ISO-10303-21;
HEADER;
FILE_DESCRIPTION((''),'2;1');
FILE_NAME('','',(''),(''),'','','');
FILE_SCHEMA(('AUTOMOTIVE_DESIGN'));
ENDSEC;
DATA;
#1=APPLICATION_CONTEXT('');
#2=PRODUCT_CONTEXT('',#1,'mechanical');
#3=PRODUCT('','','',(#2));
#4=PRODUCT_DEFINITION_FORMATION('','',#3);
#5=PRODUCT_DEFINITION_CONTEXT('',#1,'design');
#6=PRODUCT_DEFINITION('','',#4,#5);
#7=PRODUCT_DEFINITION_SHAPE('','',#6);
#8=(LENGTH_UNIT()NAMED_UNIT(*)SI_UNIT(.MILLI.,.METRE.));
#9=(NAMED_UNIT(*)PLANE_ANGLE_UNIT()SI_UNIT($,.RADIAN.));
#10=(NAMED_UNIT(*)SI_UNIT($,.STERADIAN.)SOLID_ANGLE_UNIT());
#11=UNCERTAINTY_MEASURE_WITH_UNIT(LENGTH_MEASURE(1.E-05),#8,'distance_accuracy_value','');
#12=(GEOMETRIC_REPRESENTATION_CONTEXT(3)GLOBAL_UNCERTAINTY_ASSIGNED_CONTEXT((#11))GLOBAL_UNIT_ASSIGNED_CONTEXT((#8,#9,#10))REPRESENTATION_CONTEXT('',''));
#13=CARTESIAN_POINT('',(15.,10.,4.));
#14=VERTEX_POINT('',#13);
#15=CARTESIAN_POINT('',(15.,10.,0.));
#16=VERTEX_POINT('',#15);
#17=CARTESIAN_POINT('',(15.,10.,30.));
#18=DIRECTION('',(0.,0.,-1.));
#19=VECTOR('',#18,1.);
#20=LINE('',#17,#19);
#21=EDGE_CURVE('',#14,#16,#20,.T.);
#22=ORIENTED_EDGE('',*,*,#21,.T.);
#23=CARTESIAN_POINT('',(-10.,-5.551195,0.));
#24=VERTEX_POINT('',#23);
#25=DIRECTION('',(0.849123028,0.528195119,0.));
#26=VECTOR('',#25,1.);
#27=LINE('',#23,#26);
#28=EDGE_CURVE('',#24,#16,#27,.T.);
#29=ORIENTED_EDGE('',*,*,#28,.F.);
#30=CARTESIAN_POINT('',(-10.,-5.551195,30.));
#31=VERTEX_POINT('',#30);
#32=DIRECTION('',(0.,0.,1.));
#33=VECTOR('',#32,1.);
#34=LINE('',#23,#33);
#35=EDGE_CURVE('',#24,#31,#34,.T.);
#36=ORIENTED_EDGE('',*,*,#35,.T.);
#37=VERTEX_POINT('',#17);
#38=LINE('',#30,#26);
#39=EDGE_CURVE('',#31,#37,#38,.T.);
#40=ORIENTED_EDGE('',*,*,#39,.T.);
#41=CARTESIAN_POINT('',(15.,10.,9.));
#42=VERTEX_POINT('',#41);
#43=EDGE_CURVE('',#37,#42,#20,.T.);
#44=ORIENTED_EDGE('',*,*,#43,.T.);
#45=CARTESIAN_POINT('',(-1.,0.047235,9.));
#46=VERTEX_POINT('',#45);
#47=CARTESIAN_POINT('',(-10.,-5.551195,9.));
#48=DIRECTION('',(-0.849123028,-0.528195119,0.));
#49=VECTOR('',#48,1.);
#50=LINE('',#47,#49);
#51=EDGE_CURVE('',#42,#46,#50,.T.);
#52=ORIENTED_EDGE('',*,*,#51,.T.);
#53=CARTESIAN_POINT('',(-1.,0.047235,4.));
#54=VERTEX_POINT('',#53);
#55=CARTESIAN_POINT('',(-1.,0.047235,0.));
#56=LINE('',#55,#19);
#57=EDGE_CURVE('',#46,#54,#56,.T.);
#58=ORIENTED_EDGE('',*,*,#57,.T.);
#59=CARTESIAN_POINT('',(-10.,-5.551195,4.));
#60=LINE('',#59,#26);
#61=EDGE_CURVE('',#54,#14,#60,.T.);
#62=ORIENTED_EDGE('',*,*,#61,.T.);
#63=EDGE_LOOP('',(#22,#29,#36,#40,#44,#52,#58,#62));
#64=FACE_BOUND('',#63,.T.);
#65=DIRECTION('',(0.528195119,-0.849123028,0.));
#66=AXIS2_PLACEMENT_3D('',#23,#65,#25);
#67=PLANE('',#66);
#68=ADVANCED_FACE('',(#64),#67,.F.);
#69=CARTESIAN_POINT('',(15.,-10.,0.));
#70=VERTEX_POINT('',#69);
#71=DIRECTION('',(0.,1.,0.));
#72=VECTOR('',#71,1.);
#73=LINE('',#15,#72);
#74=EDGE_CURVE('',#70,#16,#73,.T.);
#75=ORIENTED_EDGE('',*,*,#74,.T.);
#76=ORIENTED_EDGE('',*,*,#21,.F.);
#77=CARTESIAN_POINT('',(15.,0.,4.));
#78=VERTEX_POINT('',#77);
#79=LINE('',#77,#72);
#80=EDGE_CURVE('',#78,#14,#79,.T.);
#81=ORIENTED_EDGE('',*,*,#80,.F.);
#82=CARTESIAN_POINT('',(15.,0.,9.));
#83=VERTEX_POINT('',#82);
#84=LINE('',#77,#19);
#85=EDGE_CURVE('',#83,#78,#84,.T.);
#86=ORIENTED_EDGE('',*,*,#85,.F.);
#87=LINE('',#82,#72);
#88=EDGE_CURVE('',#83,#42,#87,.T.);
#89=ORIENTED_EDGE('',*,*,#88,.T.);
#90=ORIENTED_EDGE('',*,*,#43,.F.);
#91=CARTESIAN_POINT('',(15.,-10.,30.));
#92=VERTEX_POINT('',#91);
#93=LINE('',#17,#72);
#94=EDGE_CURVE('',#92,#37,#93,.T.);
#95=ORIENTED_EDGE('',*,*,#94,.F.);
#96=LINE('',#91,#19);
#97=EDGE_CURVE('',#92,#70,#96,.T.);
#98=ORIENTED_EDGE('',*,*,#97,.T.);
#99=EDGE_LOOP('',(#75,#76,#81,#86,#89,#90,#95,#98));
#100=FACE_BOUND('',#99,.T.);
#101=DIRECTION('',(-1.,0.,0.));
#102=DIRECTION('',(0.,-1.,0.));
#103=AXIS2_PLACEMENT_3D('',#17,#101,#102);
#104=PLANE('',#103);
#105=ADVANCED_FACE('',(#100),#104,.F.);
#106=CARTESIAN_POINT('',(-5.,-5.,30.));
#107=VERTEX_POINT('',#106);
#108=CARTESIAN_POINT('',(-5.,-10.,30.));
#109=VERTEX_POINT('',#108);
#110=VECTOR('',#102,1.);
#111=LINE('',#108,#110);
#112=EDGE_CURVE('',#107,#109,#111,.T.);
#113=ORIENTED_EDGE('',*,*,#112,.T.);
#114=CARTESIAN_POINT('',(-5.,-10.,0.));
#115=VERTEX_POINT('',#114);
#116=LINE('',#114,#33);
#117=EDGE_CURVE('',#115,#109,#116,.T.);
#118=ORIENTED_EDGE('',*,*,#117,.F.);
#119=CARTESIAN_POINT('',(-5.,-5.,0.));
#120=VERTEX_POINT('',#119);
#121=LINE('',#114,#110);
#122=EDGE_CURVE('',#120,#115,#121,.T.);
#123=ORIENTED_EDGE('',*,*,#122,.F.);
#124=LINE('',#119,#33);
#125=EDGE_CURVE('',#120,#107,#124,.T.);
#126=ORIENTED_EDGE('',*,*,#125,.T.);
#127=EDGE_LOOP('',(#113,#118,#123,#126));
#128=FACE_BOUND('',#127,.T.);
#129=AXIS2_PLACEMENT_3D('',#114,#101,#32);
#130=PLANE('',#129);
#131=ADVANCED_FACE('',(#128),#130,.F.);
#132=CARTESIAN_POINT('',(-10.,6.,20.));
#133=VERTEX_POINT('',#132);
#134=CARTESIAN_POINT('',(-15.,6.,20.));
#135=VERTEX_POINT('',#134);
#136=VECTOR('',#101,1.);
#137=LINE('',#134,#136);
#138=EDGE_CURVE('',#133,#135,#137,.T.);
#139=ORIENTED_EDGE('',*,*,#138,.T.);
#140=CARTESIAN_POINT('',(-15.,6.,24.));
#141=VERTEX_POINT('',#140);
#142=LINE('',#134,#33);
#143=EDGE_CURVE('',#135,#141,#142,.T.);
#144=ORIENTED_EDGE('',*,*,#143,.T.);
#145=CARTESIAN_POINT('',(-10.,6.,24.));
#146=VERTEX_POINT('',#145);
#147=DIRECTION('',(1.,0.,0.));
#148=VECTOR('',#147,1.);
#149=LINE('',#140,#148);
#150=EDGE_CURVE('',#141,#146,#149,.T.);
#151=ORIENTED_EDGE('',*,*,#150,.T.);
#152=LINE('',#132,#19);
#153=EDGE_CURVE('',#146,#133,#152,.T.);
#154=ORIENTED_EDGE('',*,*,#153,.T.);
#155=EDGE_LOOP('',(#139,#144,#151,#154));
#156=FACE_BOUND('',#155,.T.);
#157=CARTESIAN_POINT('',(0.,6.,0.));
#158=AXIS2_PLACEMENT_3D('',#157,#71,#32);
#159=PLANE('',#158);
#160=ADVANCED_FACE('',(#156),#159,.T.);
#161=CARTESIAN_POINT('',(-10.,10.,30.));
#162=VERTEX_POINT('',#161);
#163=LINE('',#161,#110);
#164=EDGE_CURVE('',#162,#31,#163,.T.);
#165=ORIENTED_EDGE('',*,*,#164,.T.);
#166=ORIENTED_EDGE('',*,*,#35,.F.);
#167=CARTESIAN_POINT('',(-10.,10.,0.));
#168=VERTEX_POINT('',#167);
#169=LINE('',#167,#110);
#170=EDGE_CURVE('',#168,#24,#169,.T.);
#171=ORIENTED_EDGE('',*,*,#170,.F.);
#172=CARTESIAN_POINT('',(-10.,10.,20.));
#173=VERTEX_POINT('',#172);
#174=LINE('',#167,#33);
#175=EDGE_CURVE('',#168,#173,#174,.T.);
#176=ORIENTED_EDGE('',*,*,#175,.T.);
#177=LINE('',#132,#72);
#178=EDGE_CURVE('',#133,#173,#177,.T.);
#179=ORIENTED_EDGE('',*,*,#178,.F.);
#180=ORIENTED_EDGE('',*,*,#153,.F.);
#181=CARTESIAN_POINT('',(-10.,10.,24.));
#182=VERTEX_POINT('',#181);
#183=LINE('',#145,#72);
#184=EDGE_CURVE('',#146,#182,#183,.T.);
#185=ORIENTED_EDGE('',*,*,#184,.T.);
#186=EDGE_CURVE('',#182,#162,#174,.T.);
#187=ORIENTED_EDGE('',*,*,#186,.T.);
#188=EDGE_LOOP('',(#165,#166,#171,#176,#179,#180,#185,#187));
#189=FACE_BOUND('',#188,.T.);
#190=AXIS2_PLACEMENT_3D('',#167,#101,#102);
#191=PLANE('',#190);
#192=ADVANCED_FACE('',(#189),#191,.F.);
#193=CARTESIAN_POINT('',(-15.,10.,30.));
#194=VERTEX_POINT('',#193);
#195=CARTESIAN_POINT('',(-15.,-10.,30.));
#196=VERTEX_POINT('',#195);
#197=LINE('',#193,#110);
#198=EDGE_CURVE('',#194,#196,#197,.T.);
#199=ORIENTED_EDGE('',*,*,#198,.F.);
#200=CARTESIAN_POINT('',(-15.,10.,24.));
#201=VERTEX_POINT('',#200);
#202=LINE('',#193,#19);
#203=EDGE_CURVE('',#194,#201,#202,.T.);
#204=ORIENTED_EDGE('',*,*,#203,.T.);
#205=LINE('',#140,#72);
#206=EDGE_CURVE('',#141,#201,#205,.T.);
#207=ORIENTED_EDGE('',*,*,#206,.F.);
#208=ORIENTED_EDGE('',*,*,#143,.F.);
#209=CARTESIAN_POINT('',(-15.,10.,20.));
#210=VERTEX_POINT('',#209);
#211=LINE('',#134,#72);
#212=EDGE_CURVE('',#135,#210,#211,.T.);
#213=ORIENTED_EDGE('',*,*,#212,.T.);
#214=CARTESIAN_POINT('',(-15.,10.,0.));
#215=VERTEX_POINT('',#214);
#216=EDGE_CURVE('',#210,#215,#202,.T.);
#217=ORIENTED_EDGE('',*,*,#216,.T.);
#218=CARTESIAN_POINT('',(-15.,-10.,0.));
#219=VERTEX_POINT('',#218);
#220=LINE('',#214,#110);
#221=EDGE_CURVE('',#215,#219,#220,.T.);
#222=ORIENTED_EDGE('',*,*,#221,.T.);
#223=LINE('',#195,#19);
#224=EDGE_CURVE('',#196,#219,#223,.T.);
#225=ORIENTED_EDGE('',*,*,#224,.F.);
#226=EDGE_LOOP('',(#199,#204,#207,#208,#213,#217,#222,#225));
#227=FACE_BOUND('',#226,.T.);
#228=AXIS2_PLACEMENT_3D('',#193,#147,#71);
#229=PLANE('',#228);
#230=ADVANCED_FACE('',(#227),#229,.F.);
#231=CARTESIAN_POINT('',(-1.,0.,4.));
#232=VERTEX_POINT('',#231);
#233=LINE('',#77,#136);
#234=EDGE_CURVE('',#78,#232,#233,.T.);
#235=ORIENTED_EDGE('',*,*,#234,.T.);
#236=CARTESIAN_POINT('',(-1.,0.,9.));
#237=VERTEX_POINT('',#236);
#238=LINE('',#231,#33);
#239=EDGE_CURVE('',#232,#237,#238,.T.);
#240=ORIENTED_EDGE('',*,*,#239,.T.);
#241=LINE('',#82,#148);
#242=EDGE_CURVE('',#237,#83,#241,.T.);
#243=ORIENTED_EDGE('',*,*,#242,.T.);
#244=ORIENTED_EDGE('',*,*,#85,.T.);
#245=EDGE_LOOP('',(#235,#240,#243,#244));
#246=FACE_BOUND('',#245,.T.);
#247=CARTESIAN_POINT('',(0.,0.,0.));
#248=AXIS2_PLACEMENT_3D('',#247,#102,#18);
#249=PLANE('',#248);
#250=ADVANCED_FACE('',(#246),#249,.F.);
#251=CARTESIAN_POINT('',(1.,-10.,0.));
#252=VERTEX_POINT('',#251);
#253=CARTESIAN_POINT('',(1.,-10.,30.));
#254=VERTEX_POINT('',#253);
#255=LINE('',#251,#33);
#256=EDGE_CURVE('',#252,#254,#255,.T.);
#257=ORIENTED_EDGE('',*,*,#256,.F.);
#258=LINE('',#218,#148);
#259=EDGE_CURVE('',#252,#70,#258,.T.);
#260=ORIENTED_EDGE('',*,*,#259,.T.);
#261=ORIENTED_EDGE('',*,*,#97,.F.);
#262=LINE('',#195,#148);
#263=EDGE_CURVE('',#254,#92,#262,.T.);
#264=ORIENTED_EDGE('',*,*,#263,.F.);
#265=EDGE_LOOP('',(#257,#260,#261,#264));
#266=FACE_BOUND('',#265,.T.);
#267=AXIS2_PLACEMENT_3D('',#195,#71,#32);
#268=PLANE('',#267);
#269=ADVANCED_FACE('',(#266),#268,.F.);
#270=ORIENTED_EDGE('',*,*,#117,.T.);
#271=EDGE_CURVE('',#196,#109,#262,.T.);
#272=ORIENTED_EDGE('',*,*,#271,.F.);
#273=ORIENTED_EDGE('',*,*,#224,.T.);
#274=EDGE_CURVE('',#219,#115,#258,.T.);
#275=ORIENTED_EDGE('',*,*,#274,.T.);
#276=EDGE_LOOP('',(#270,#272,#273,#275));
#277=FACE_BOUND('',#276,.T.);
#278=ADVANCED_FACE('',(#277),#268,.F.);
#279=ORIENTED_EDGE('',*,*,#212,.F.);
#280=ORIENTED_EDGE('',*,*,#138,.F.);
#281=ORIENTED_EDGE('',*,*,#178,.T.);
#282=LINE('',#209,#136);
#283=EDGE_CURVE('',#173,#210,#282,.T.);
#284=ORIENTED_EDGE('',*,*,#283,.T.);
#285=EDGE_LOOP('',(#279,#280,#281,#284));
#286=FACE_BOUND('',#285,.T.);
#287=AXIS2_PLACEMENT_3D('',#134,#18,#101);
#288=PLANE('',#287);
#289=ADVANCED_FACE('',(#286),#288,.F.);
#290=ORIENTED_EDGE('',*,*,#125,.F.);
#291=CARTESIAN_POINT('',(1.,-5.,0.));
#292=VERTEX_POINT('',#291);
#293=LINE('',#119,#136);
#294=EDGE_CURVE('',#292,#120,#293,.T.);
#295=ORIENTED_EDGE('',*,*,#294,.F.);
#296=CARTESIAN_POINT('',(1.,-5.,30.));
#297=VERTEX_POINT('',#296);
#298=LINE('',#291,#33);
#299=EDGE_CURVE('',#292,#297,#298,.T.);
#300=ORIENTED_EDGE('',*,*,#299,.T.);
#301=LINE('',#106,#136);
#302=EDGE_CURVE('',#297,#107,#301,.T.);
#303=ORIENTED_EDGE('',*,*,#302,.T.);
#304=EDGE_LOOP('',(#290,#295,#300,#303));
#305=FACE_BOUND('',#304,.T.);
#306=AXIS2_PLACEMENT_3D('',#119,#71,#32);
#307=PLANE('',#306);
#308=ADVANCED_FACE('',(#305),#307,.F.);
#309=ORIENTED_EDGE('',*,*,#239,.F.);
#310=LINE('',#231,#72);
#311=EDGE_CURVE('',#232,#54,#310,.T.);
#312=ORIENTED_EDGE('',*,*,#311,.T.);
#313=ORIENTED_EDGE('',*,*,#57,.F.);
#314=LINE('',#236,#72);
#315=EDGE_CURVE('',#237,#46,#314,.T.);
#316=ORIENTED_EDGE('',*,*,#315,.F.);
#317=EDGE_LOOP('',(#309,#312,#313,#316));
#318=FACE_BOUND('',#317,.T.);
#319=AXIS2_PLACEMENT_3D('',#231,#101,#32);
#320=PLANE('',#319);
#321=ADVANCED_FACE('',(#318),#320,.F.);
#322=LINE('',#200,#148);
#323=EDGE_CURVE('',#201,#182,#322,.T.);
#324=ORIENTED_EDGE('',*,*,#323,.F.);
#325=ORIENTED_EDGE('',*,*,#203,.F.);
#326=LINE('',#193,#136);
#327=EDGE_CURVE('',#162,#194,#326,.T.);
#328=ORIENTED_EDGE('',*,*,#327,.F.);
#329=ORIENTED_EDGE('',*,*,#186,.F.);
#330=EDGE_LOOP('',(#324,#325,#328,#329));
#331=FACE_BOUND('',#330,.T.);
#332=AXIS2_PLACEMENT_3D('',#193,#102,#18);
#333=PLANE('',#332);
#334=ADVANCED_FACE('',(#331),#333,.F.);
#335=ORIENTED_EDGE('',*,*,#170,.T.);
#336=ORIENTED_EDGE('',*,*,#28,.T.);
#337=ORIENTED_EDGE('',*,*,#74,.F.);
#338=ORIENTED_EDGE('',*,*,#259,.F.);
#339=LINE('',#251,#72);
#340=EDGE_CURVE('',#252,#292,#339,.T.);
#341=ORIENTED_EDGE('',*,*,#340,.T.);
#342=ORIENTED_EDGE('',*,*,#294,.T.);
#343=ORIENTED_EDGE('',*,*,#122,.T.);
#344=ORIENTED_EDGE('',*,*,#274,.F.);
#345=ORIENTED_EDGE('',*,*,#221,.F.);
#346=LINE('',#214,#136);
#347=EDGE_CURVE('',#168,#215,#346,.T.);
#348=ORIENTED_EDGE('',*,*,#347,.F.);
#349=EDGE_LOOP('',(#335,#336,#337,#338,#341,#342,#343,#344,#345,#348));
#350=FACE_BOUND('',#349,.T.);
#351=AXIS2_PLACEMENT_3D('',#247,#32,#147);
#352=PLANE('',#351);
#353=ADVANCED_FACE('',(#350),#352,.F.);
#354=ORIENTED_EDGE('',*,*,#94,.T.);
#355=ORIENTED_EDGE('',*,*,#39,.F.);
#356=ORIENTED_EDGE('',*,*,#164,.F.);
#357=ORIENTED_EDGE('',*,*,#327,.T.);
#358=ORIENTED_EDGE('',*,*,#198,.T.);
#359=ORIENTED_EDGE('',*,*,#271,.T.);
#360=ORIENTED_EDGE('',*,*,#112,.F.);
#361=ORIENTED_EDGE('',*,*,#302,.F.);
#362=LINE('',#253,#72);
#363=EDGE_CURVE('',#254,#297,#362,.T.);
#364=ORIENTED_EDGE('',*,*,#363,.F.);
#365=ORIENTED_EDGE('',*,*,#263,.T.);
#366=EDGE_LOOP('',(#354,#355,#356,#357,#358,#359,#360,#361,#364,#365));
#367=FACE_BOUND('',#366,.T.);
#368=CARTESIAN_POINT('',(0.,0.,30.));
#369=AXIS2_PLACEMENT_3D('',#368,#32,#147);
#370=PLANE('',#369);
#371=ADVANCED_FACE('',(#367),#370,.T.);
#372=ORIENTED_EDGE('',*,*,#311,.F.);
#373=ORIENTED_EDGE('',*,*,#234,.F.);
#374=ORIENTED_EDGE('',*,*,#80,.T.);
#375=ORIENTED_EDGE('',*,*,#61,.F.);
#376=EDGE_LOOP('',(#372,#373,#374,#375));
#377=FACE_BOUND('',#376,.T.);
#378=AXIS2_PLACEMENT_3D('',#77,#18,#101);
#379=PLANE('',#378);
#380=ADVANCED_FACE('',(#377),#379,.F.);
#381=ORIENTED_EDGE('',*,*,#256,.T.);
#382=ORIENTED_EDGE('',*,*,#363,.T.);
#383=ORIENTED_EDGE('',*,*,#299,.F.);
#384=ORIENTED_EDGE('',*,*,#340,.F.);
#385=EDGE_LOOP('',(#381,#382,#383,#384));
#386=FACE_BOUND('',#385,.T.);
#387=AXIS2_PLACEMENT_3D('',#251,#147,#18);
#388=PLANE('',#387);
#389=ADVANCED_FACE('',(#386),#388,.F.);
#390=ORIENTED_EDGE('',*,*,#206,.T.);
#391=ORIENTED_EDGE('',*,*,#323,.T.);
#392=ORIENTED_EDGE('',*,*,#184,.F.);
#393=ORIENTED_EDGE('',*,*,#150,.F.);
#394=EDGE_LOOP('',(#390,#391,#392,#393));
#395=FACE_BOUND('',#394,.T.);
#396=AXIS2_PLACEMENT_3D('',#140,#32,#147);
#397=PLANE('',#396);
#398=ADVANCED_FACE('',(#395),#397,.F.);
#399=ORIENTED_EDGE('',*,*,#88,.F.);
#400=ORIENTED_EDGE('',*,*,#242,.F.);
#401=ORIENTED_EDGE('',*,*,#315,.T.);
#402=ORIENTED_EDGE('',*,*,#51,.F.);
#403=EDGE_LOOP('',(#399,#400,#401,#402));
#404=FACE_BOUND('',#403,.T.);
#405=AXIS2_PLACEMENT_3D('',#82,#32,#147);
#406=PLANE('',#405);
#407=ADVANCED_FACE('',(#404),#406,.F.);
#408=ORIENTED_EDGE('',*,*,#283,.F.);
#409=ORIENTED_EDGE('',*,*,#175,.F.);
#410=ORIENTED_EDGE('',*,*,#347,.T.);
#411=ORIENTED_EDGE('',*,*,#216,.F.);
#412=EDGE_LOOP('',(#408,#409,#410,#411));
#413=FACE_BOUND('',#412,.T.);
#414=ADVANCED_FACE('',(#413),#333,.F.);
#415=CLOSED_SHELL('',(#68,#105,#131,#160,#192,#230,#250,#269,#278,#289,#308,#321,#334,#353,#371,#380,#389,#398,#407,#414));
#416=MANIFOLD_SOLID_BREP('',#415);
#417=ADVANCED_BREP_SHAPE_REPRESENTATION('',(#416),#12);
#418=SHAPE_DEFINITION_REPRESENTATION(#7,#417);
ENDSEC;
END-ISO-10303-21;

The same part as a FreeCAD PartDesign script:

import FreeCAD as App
import Part
import Sketcher
Q = App.Units.Quantity

doc = App.newDocument("Part")
params = doc.addObject("Spreadsheet::Sheet", "Params")
for row, (alias, value) in enumerate([
    ("sketch1_width", "30 mm"),
    ("sketch1_height", "20 mm"),
    ("pad1_length", "30 mm"),
    ("sketch2_width", "6 mm"),
    ("sketch2_height", "5 mm"),
    ("pocket1_length", "30 mm"),
    ("sketch3_width", "25 mm"),
    ("pocket2_length", "30 mm"),
    ("sketch4_width", "5 mm"),
    ("sketch4_height", "4 mm"),
    ("pocket3_length", "4 mm"),
    ("sketch5_width", "16 mm"),
    ("sketch5_height", "5 mm"),
    ("pocket4_length", "10 mm"),
], start=1):
    params.set(f"A{row}", alias)
    params.set(f"B{row}", "=" + value)
    params.setAlias(f"B{row}", alias)

body = doc.addObject("PartDesign::Body", "Body")

sketch1 = doc.addObject("Sketcher::SketchObject", "Sketch")
body.addObject(sketch1)
sketch1.AttachmentSupport = (doc.XY_Plane, [""])
sketch1.MapMode = "FlatFace"
sketch1.addGeometry([
    Part.LineSegment(App.Vector(-15, 10, 0), App.Vector(-15, -10, 0)),
    Part.LineSegment(App.Vector(-15, -10, 0), App.Vector(15, -10, 0)),
    Part.LineSegment(App.Vector(15, -10, 0), App.Vector(15, 10, 0)),
    Part.LineSegment(App.Vector(15, 10, 0), App.Vector(-15, 10, 0)),
], False)
sketch1.addConstraint([
    Sketcher.Constraint("Coincident", 0, 2, 1, 1),
    Sketcher.Constraint("Coincident", 1, 2, 2, 1),
    Sketcher.Constraint("Coincident", 2, 2, 3, 1),
    Sketcher.Constraint("Coincident", 3, 2, 0, 1),
    Sketcher.Constraint("Vertical", 0),
    Sketcher.Constraint("Horizontal", 1),
    Sketcher.Constraint("Vertical", 2),
    Sketcher.Constraint("Horizontal", 3),
    Sketcher.Constraint("Symmetric", 0, 2, 2, 2, -1, 1),
    Sketcher.Constraint("DistanceX", 1, 1, 1, 2, Q("30 mm")),
    Sketcher.Constraint("DistanceY", 0, 2, 0, 1, Q("20 mm")),
])
sketch1.setExpression("Constraints[9]", "Params.sketch1_width")
sketch1.setExpression("Constraints[10]", "Params.sketch1_height")
pad1 = doc.addObject("PartDesign::Pad", "Pad")
body.addObject(pad1)
pad1.Profile = sketch1
pad1.setExpression("Length", "Params.pad1_length")

sketch2 = doc.addObject("Sketcher::SketchObject", "Sketch001")
body.addObject(sketch2)
sketch2.AttachmentSupport = (doc.XY_Plane, [""])
sketch2.MapMode = "FlatFace"
sketch2.AttachmentOffset = App.Placement(App.Vector(0, 0, 30), App.Rotation())
sketch2.addGeometry([
    Part.LineSegment(App.Vector(-5, -5, 0), App.Vector(-5, -10, 0)),
    Part.LineSegment(App.Vector(-5, -10, 0), App.Vector(1, -10, 0)),
    Part.LineSegment(App.Vector(1, -10, 0), App.Vector(1, -5, 0)),
    Part.LineSegment(App.Vector(1, -5, 0), App.Vector(-5, -5, 0)),
], False)
sketch2.addConstraint([
    Sketcher.Constraint("Coincident", 0, 2, 1, 1),
    Sketcher.Constraint("Coincident", 1, 2, 2, 1),
    Sketcher.Constraint("Coincident", 2, 2, 3, 1),
    Sketcher.Constraint("Coincident", 3, 2, 0, 1),
    Sketcher.Constraint("Vertical", 0),
    Sketcher.Constraint("Horizontal", 1),
    Sketcher.Constraint("Vertical", 2),
    Sketcher.Constraint("Horizontal", 3),
    Sketcher.Constraint("DistanceX", 1, 1, 1, 2, Q("6 mm")),
    Sketcher.Constraint("DistanceY", 0, 2, 0, 1, Q("5 mm")),
    Sketcher.Constraint("DistanceX", 0, 2, -1, 1, Q("5 mm")),
    Sketcher.Constraint("DistanceY", 0, 2, -1, 1, Q("10 mm")),
])
sketch2.setExpression("Constraints[8]", "Params.sketch2_width")
sketch2.setExpression("Constraints[9]", "Params.sketch2_height")
pocket1 = doc.addObject("PartDesign::Pocket", "Pocket")
body.addObject(pocket1)
pocket1.Profile = sketch2
pocket1.setExpression("Length", "Params.pocket1_length")

sketch3 = doc.addObject("Sketcher::SketchObject", "Sketch002")
body.addObject(sketch3)
sketch3.AttachmentSupport = (doc.XY_Plane, [""])
sketch3.MapMode = "FlatFace"
sketch3.AttachmentOffset = App.Placement(App.Vector(0, 0, 30), App.Rotation())
sketch3.addGeometry([
    Part.LineSegment(App.Vector(-10, 10, 0), App.Vector(-10, -6, 0)),
    Part.LineSegment(App.Vector(-10, -6, 0), App.Vector(15, 10, 0)),
    Part.LineSegment(App.Vector(15, 10, 0), App.Vector(-10, 10, 0)),
], False)
sketch3.addConstraint([
    Sketcher.Constraint("Coincident", 0, 2, 1, 1),
    Sketcher.Constraint("Coincident", 1, 2, 2, 1),
    Sketcher.Constraint("Coincident", 2, 2, 0, 1),
    Sketcher.Constraint("Vertical", 0),
    Sketcher.Constraint("Horizontal", 2),
    Sketcher.Constraint("DistanceX", 2, 2, 2, 1, Q("25 mm")),
    Sketcher.Constraint("DistanceX", 0, 2, -1, 1, Q("10 mm")),
    Sketcher.Constraint("DistanceY", -1, 1, 1, 2, Q("10 mm")),
    Sketcher.Constraint("Distance", 1, Q("29.442141 mm")),
])
sketch3.setExpression("Constraints[5]", "Params.sketch3_width")
pocket2 = doc.addObject("PartDesign::Pocket", "Pocket001")
body.addObject(pocket2)
pocket2.Profile = sketch3
pocket2.setExpression("Length", "Params.pocket2_length")

sketch4 = doc.addObject("Sketcher::SketchObject", "Sketch003")
body.addObject(sketch4)
sketch4.AttachmentSupport = (doc.XZ_Plane, [""])
sketch4.MapMode = "FlatFace"
sketch4.AttachmentOffset = App.Placement(App.Vector(0, 0, -10), App.Rotation())
sketch4.addGeometry([
    Part.LineSegment(App.Vector(-15, 20, 0), App.Vector(-15, 24, 0)),
    Part.LineSegment(App.Vector(-15, 24, 0), App.Vector(-10, 24, 0)),
    Part.LineSegment(App.Vector(-10, 24, 0), App.Vector(-10, 20, 0)),
    Part.LineSegment(App.Vector(-10, 20, 0), App.Vector(-15, 20, 0)),
], False)
sketch4.addConstraint([
    Sketcher.Constraint("Coincident", 0, 2, 1, 1),
    Sketcher.Constraint("Coincident", 1, 2, 2, 1),
    Sketcher.Constraint("Coincident", 2, 2, 3, 1),
    Sketcher.Constraint("Coincident", 3, 2, 0, 1),
    Sketcher.Constraint("Vertical", 0),
    Sketcher.Constraint("Horizontal", 1),
    Sketcher.Constraint("Vertical", 2),
    Sketcher.Constraint("Horizontal", 3),
    Sketcher.Constraint("DistanceX", 1, 1, 1, 2, Q("5 mm")),
    Sketcher.Constraint("DistanceY", 0, 1, 0, 2, Q("4 mm")),
    Sketcher.Constraint("DistanceX", 0, 2, -1, 1, Q("15 mm")),
    Sketcher.Constraint("DistanceY", -1, 1, 0, 2, Q("24 mm")),
])
sketch4.setExpression("Constraints[8]", "Params.sketch4_width")
sketch4.setExpression("Constraints[9]", "Params.sketch4_height")
pocket3 = doc.addObject("PartDesign::Pocket", "Pocket002")
body.addObject(pocket3)
pocket3.Profile = sketch4
pocket3.setExpression("Length", "Params.pocket3_length")
pocket3.Reversed = True

sketch5 = doc.addObject("Sketcher::SketchObject", "Sketch004")
body.addObject(sketch5)
sketch5.AttachmentSupport = (doc.XZ_Plane, [""])
sketch5.MapMode = "FlatFace"
sketch5.AttachmentOffset = App.Placement(App.Vector(0, 0, -10), App.Rotation())
sketch5.addGeometry([
    Part.LineSegment(App.Vector(-1, 4, 0), App.Vector(-1, 9, 0)),
    Part.LineSegment(App.Vector(-1, 9, 0), App.Vector(15, 9, 0)),
    Part.LineSegment(App.Vector(15, 9, 0), App.Vector(15, 4, 0)),
    Part.LineSegment(App.Vector(15, 4, 0), App.Vector(-1, 4, 0)),
], False)
sketch5.addConstraint([
    Sketcher.Constraint("Coincident", 0, 2, 1, 1),
    Sketcher.Constraint("Coincident", 1, 2, 2, 1),
    Sketcher.Constraint("Coincident", 2, 2, 3, 1),
    Sketcher.Constraint("Coincident", 3, 2, 0, 1),
    Sketcher.Constraint("Vertical", 0),
    Sketcher.Constraint("Horizontal", 1),
    Sketcher.Constraint("Vertical", 2),
    Sketcher.Constraint("Horizontal", 3),
    Sketcher.Constraint("DistanceX", 1, 1, 1, 2, Q("16 mm")),
    Sketcher.Constraint("DistanceY", 0, 1, 0, 2, Q("5 mm")),
    Sketcher.Constraint("DistanceX", 0, 2, -1, 1, Q("1 mm")),
    Sketcher.Constraint("DistanceY", -1, 1, 0, 2, Q("9 mm")),
])
sketch5.setExpression("Constraints[8]", "Params.sketch5_width")
sketch5.setExpression("Constraints[9]", "Params.sketch5_height")
pocket4 = doc.addObject("PartDesign::Pocket", "Pocket003")
body.addObject(pocket4)
pocket4.Profile = sketch5
pocket4.setExpression("Length", "Params.pocket4_length")
pocket4.Reversed = True

doc.recompute()
